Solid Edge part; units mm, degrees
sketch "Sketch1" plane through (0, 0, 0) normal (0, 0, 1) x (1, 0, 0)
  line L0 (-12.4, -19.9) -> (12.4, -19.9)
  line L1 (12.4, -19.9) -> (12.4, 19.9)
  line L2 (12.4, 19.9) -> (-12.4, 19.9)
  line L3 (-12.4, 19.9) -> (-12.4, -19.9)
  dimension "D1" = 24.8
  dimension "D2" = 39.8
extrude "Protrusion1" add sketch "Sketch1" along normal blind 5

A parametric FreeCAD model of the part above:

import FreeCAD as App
import Part
import Sketcher
Q = App.Units.Quantity


def add_polygon(sketch, points):
    """Adds a closed chain of lines whose ends are joined by coincident constraints."""
    first, n = sketch.GeometryCount, len(points)
    for a, b in zip(points, points[1:] + points[:1]):
        sketch.addGeometry(Part.LineSegment(App.Vector(*a, 0), App.Vector(*b, 0)), False)
    for i in range(n):
        sketch.addConstraint(Sketcher.Constraint("Coincident", first + i, 2, first + (i + 1) % n, 1))

doc = App.newDocument("Part")
body = doc.addObject("PartDesign::Body", "Body")

# Sketch on XY plane
sketch1 = body.newObject("Sketcher::SketchObject", "Sketch")
sketch1.AttachmentSupport = (doc.getObject("XY_Plane"), [""])
sketch1.MapMode = "FlatFace"
add_polygon(sketch1, [(-12, 20), (-12, -20), (12, -20), (12, 20)])  # lines 0-3
sketch1.addConstraint([
    Sketcher.Constraint("Vertical", 0),
    Sketcher.Constraint("Horizontal", 1),
    Sketcher.Constraint("Vertical", 2),
    Sketcher.Constraint("Horizontal", 3),
    Sketcher.Constraint("Symmetric", 0, 2, 2, 2, -1, 1),
    Sketcher.Constraint("DistanceX", 0, 2, -1, 1, Q("12.4 mm")),
    Sketcher.Constraint("DistanceY", 0, 2, 0, 1, Q("39.8 mm")),
])
pad1 = body.newObject("PartDesign::Pad", "Pad")
pad1.Profile = sketch1
pad1.Length = 5

doc.recompute()
